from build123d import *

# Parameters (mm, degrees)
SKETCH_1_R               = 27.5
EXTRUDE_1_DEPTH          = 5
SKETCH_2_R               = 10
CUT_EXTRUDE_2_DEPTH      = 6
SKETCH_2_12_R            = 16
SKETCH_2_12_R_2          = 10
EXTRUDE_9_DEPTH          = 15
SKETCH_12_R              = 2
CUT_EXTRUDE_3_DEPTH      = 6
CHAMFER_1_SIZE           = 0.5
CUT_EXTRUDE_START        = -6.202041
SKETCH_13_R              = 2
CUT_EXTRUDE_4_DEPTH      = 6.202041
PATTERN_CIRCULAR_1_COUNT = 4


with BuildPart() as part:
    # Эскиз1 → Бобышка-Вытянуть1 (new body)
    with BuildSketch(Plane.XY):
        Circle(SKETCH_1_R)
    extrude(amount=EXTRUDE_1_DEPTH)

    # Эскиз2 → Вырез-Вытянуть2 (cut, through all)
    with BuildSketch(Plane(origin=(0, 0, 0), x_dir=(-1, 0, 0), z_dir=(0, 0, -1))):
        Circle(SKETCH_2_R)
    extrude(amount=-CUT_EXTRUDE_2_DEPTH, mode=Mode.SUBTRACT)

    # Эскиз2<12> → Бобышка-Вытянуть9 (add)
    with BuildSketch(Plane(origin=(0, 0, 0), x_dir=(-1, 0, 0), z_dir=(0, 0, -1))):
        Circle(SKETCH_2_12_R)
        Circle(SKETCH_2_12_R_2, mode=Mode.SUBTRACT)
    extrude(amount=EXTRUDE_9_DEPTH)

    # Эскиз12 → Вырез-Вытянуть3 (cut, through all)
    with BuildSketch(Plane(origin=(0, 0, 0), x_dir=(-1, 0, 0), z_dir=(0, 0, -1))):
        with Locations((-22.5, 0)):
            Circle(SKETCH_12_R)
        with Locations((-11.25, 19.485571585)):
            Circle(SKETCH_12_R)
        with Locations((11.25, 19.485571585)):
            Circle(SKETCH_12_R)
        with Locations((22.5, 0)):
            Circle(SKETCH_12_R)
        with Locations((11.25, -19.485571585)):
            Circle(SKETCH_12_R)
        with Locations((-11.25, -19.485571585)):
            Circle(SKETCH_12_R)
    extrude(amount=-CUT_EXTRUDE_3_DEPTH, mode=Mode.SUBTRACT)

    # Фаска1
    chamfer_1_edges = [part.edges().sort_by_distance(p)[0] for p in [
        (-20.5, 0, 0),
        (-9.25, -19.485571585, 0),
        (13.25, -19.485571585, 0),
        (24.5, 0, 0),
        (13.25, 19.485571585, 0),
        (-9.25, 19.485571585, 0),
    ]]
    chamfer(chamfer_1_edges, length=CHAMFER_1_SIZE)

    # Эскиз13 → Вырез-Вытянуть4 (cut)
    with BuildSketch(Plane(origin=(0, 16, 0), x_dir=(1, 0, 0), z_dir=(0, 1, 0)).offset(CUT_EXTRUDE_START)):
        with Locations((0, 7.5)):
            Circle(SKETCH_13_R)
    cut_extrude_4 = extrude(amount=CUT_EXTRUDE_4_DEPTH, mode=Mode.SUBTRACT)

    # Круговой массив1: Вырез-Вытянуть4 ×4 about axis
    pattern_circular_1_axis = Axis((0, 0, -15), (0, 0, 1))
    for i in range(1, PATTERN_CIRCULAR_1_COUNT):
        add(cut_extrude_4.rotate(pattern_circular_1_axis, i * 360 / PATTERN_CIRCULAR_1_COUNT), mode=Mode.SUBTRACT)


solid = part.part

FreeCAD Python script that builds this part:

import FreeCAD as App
import Part
import Sketcher
from FreeCAD import Vector


def edges_at(feature, points):
    """Names of the edges that pass closest to the given points."""
    edges = feature.Shape.Edges
    near = lambda p: min(range(len(edges)), key=lambda i: edges[i].distToShape(Part.Vertex(*p))[0])
    return sorted({f"Edge{near(p) + 1}" for p in points})

doc = App.newDocument("Part")
body = doc.addObject("PartDesign::Body", "Body")

sketch1 = body.newObject("Sketcher::SketchObject", "Sketch")
sketch1.AttachmentSupport = (doc.getObject("XY_Plane"), [""])
sketch1.MapMode = "FlatFace"
sketch1.addGeometry(Part.Circle(Vector(0, 0, 0), Vector(0, 0, 1), 28), False)
sketch1.addConstraint([
    Sketcher.Constraint("Coincident", 0, 3, -1, 1),
    Sketcher.Constraint("Diameter", 0, 55.0),
])
pad1 = body.newObject("PartDesign::Pad", "Pad")
pad1.Profile = sketch1
pad1.Length = 5

sketch2 = body.newObject("Sketcher::SketchObject", "Sketch001")
sketch2.AttachmentSupport = (doc.getObject("XY_Plane"), [""])
sketch2.MapMode = "FlatFace"
sketch2.addGeometry(Part.Circle(Vector(0, 0, 0), Vector(0, 0, 1), 10), False)
sketch2.addConstraint([
    Sketcher.Constraint("Coincident", 0, 3, -1, 1),
    Sketcher.Constraint("Diameter", 0, 20.0),
])
pocket1 = body.newObject("PartDesign::Pocket", "Pocket")
pocket1.Profile = sketch2
pocket1.Type = "ThroughAll"
pocket1.Reversed = True

sketch3 = body.newObject("Sketcher::SketchObject", "Sketch002")
sketch3.AttachmentSupport = (doc.getObject("XY_Plane"), [""])
sketch3.MapMode = "FlatFace"
sketch3.addGeometry([
    Part.Circle(Vector(0, 0, 0), Vector(0, 0, 1), 16),
    Part.Circle(Vector(0, 0, 0), Vector(0, 0, 1), 10),
], False)
sketch3.addConstraint([
    Sketcher.Constraint("Coincident", 0, 3, -1, 1),
    Sketcher.Constraint("Coincident", 1, 3, -1, 1),
    Sketcher.Constraint("Diameter", 0, 32.0),
    Sketcher.Constraint("Diameter", 1, 20.0),
])
pad2 = body.newObject("PartDesign::Pad", "Pad001")
pad2.Profile = sketch3
pad2.Length = 15
pad2.Reversed = True

sketch4 = body.newObject("Sketcher::SketchObject", "Sketch003")
sketch4.AttachmentSupport = (doc.getObject("XY_Plane"), [""])
sketch4.MapMode = "FlatFace"
sketch4.addGeometry([
    Part.Circle(Vector(22.5, 0, 0), Vector(0, 0, 1), 2),
    Part.Circle(Vector(11.2, 19.5, 0), Vector(0, 0, 1), 2),
    Part.Circle(Vector(-11.2, 19.5, 0), Vector(0, 0, 1), 2),
    Part.Circle(Vector(-22.5, 0, 0), Vector(0, 0, 1), 2),
    Part.Circle(Vector(-11.2, -19.5, 0), Vector(0, 0, 1), 2),
    Part.Circle(Vector(11.2, -19.5, 0), Vector(0, 0, 1), 2),
], False)
sketch4.addConstraint([
    Sketcher.Constraint("Equal", 0, 1),
    Sketcher.Constraint("Equal", 1, 2),
    Sketcher.Constraint("Equal", 2, 3),
    Sketcher.Constraint("Equal", 3, 4),
    Sketcher.Constraint("Equal", 4, 5),
    Sketcher.Constraint("Symmetric", 0, 3, 3, 3, -1, 1),
    Sketcher.Constraint("Symmetric", 1, 3, 4, 3, -1, 1),
    Sketcher.Constraint("Symmetric", 2, 3, 5, 3, -1, 1),
    Sketcher.Constraint("Symmetric", 1, 3, 2, 3, -2),
    Sketcher.Constraint("PointOnObject", 0, 3, -1),
    Sketcher.Constraint("Diameter", 0, 4.0),
    Sketcher.Constraint("DistanceX", 3, 3, 0, 3, 45.0),
    Sketcher.Constraint("DistanceX", 2, 3, 1, 3, 22.5),
    Sketcher.Constraint("DistanceY", -1, 1, 1, 3, 19.485572),
])
pocket2 = body.newObject("PartDesign::Pocket", "Pocket001")
pocket2.Profile = sketch4
pocket2.Type = "ThroughAll"
pocket2.Reversed = True
doc.recompute()

chamfer = body.newObject("PartDesign::Chamfer", "Chamfer")
chamfer.Base = (pocket2, edges_at(pocket2, [
    (-20.5, 0, 0),
    (-9.25, -19.486, 0),
    (13.25, -19.486, 0),
    (24.5, 0, 0),
    (13.25, 19.486, 0),
    (-9.25, 19.486, 0),
]))
chamfer.Size = 0.5

sketch5 = body.newObject("Sketcher::SketchObject", "Sketch004")
sketch5.AttachmentSupport = (doc.getObject("XZ_Plane"), [""])
sketch5.MapMode = "FlatFace"
sketch5.AttachmentOffset = App.Placement(Vector(0, 0, -9.797959), App.Rotation())
sketch5.addGeometry(Part.Circle(Vector(0, -7.5, 0), Vector(0, 0, 1), 2), False)
sketch5.addConstraint([
    Sketcher.Constraint("PointOnObject", 0, 3, -2),
    Sketcher.Constraint("Diameter", 0, 4.0),
    Sketcher.Constraint("DistanceY", 0, 3, -1, 1, 7.5),
])
pocket3 = body.newObject("PartDesign::Pocket", "Pocket002")
pocket3.Profile = sketch5
pocket3.Length = 6.202041
doc.recompute()

polarpattern = body.newObject("PartDesign::PolarPattern", "PolarPattern")
polarpattern.Originals = [pocket3]
polarpattern.Axis = (doc.getObject("Z_Axis"), [""])
polarpattern.Angle = 360
polarpattern.Occurrences = 4
body.Tip = polarpattern

doc.recompute()
